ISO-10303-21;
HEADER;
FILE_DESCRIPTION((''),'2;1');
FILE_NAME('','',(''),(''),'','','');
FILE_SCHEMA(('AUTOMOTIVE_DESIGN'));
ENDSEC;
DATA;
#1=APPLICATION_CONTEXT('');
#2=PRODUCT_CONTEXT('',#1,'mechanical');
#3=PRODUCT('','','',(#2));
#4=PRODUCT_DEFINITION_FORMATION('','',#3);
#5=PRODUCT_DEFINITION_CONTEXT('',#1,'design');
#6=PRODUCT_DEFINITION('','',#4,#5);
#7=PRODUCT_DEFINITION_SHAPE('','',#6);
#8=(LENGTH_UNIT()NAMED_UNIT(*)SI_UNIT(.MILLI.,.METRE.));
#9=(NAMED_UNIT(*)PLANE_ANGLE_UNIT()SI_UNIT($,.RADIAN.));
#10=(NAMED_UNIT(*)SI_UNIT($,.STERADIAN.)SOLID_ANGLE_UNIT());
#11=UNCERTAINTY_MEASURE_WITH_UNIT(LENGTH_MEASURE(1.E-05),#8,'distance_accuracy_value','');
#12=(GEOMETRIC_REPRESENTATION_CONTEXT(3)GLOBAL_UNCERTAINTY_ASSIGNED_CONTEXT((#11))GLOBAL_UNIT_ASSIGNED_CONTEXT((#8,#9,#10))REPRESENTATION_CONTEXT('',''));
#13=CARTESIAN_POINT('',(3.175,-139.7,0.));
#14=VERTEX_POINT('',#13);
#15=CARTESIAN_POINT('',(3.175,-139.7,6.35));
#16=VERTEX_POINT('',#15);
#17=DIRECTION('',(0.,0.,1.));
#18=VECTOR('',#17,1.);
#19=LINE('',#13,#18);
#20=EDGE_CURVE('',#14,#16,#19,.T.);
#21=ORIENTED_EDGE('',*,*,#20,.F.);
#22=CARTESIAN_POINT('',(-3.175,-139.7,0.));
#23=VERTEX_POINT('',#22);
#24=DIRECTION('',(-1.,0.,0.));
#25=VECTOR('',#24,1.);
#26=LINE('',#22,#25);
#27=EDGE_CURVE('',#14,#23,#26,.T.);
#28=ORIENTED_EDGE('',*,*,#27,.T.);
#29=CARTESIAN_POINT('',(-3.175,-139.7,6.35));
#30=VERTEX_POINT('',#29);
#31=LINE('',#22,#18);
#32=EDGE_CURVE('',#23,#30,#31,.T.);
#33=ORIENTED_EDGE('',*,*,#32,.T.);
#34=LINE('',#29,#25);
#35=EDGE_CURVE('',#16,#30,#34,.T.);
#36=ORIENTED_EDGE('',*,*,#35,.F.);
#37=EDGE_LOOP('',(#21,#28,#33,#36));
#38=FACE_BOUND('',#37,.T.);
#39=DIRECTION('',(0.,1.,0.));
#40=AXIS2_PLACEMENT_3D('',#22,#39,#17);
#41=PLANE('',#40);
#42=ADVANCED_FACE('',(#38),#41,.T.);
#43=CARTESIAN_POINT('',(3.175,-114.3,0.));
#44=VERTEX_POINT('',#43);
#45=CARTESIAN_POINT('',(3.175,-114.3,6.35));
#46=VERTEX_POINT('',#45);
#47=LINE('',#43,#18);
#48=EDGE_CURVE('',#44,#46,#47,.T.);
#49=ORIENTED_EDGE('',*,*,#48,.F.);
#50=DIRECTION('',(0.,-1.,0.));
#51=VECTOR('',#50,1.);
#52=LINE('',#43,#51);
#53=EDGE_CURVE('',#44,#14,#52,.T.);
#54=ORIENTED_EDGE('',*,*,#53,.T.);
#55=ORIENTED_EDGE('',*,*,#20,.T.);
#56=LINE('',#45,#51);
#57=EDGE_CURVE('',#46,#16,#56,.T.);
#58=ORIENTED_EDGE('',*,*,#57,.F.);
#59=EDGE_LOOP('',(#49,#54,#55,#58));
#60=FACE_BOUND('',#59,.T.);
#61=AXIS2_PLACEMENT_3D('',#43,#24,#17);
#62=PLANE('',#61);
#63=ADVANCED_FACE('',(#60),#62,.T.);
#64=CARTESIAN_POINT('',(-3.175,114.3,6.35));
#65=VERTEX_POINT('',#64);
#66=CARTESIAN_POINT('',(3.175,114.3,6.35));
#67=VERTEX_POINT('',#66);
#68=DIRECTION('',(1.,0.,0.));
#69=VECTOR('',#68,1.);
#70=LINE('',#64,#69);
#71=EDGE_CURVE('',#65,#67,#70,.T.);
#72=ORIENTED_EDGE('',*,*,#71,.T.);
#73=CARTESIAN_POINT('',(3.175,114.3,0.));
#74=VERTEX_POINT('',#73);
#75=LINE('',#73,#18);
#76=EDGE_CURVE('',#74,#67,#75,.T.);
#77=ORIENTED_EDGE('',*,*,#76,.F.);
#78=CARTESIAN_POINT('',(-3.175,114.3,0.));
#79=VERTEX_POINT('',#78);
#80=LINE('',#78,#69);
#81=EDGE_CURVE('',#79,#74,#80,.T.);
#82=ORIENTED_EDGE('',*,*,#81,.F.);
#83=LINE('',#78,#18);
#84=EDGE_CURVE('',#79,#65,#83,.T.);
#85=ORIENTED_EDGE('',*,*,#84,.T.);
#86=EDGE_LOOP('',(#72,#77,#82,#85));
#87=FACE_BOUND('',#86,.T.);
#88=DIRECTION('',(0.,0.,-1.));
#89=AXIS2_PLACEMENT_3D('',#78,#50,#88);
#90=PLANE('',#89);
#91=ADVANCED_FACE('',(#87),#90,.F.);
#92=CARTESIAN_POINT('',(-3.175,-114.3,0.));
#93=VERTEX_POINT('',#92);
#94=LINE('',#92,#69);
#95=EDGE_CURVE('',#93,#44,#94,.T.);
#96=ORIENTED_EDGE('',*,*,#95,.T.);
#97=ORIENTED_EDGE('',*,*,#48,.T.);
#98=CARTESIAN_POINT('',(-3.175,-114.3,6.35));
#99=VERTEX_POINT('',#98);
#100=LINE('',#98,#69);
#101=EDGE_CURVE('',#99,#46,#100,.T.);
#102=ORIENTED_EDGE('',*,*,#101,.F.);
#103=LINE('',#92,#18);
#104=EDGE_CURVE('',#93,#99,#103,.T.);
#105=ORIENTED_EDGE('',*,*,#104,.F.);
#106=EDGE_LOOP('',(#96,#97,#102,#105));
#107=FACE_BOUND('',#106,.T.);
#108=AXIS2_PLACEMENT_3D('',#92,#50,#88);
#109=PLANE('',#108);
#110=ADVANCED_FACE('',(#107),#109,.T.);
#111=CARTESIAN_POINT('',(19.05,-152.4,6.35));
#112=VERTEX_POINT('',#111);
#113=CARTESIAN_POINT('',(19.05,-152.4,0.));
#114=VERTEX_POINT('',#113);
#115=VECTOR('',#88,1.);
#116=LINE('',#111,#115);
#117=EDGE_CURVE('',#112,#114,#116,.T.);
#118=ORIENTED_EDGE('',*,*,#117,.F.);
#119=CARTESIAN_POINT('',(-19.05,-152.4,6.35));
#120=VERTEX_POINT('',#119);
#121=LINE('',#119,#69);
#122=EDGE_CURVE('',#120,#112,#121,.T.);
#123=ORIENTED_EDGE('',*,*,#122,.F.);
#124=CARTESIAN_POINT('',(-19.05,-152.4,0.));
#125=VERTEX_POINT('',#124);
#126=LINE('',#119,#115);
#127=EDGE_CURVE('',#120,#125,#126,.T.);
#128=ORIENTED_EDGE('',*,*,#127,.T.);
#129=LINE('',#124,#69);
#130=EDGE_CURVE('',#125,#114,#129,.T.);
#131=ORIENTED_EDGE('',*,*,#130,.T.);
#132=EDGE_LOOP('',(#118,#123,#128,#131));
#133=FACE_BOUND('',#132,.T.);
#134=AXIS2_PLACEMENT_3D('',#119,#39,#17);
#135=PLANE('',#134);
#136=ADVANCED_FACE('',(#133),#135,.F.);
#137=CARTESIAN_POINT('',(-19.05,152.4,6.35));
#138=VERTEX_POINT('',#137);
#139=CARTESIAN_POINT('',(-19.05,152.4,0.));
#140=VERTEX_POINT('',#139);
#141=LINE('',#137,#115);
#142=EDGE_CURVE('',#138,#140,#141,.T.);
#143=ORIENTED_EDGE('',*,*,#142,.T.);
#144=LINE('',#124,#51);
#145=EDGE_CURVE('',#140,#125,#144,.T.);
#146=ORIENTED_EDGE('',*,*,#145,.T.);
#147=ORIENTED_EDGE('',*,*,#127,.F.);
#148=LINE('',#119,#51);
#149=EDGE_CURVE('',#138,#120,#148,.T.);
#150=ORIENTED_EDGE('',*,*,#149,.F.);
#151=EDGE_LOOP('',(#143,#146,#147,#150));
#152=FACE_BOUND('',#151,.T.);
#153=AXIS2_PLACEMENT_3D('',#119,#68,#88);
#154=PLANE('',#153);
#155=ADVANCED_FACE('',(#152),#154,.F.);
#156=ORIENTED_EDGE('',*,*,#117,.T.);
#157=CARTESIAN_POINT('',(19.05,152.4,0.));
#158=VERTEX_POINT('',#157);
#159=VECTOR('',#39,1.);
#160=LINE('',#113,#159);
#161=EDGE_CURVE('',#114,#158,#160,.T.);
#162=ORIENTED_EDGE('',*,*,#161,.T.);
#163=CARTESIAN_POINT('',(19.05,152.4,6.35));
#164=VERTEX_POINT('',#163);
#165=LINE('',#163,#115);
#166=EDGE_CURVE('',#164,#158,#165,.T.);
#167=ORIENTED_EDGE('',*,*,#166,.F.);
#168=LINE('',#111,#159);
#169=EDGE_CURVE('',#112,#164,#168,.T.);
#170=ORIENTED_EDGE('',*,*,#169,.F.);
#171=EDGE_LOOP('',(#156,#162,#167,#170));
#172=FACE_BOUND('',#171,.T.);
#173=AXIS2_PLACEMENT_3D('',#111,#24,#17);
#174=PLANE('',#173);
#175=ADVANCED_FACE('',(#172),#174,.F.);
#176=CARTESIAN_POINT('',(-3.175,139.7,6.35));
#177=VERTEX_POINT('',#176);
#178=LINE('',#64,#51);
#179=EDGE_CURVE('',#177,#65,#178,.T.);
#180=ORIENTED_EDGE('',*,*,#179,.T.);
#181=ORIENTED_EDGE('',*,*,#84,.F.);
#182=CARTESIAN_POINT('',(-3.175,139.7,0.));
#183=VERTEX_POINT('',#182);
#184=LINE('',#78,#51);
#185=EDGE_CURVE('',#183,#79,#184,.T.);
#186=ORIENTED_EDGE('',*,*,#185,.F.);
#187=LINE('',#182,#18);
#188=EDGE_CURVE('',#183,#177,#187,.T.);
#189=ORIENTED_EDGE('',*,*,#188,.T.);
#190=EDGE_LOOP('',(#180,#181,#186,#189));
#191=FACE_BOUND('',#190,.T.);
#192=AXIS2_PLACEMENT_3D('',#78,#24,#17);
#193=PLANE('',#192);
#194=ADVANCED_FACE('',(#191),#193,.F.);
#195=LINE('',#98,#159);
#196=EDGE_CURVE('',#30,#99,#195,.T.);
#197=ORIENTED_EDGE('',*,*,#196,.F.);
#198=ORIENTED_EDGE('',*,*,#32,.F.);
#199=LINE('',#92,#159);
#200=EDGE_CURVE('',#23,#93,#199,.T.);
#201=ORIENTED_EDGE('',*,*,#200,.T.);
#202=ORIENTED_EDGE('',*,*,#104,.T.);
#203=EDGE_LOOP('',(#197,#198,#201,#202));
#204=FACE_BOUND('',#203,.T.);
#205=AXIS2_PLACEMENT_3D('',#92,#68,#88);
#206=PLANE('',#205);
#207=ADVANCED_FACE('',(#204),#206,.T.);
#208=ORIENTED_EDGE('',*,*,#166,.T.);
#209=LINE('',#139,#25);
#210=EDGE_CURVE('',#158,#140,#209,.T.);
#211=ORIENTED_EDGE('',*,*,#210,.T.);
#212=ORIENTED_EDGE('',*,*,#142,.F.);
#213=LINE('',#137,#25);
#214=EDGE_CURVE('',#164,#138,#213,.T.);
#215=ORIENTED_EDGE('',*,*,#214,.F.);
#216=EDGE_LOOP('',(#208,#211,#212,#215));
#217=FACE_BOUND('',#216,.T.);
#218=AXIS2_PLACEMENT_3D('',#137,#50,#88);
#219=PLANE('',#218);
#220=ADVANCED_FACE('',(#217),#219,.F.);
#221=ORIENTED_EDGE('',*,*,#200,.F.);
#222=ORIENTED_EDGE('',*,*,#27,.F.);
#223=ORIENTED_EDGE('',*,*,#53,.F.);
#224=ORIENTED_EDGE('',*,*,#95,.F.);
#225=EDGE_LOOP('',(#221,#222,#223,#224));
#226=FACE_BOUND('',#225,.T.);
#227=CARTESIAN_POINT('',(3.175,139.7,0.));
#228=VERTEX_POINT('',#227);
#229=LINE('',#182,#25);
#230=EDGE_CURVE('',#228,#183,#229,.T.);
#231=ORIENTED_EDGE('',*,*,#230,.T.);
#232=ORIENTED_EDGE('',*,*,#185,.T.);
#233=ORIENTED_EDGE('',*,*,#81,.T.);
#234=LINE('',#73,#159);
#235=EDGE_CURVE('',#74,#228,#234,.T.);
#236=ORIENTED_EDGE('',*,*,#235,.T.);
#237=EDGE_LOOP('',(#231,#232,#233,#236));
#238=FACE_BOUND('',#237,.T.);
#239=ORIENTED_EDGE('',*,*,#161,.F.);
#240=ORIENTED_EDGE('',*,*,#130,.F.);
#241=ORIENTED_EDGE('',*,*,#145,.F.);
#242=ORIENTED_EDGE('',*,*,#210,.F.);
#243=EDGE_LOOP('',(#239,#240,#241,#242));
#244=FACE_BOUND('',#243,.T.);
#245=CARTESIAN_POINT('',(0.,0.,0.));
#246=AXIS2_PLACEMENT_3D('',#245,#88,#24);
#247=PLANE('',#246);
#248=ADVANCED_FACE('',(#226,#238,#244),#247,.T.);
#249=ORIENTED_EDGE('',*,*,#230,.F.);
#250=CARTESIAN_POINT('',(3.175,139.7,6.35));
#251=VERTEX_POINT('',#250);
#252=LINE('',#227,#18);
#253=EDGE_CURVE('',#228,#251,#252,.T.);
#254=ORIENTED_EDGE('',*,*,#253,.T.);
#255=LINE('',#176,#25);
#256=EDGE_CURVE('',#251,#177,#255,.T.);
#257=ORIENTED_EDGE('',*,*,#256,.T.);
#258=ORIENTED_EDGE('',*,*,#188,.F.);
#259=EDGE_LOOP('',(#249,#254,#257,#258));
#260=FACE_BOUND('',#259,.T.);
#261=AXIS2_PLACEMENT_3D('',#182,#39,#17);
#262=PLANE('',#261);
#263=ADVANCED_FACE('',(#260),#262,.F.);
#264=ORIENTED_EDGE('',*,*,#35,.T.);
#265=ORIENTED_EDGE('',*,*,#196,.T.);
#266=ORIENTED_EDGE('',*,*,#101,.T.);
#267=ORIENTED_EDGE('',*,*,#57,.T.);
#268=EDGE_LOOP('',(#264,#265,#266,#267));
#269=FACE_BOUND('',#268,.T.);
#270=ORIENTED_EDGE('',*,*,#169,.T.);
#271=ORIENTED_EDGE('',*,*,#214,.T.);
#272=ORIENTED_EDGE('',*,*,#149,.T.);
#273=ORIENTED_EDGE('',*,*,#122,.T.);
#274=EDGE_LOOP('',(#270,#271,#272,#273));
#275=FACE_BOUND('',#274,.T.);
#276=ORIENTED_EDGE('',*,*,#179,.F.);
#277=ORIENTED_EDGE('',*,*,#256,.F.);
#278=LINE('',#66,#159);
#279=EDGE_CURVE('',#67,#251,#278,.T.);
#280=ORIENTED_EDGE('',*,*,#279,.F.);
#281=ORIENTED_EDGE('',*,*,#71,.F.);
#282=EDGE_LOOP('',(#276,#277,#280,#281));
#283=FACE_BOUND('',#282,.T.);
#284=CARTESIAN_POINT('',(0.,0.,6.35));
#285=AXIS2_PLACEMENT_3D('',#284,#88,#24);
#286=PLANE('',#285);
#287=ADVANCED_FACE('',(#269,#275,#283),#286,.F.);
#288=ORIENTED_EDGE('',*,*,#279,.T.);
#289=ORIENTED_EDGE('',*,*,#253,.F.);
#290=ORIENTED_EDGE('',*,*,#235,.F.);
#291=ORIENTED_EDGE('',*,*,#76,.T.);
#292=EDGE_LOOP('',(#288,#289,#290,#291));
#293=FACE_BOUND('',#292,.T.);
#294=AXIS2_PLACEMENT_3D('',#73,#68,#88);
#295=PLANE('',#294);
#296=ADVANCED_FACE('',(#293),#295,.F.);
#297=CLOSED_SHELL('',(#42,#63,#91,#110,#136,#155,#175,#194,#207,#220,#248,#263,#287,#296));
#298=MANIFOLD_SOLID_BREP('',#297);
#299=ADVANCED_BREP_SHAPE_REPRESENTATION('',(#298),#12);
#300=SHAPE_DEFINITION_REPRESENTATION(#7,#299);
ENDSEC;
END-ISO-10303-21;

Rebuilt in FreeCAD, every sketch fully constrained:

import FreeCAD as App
import Part
import Sketcher
from FreeCAD import Vector
Q = App.Units.Quantity


def add_polygon(sketch, points):
    """Adds a closed chain of lines whose ends are joined by coincident constraints."""
    first, n = sketch.GeometryCount, len(points)
    for a, b in zip(points, points[1:] + points[:1]):
        sketch.addGeometry(Part.LineSegment(App.Vector(*a, 0), App.Vector(*b, 0)), False)
    for i in range(n):
        sketch.addConstraint(Sketcher.Constraint("Coincident", first + i, 2, first + (i + 1) % n, 1))

doc = App.newDocument("Part")
body = doc.addObject("PartDesign::Body", "Body")

sketch1 = body.newObject("Sketcher::SketchObject", "Sketch")
sketch1.AttachmentSupport = (doc.getObject("XY_Plane"), [""])
sketch1.MapMode = "FlatFace"
add_polygon(sketch1, [(-19, 152), (-19, -152), (19, -152), (19, 152)])
sketch1.addConstraint([
    Sketcher.Constraint("Vertical", 0),
    Sketcher.Constraint("Horizontal", 1),
    Sketcher.Constraint("Vertical", 2),
    Sketcher.Constraint("Horizontal", 3),
    Sketcher.Constraint("Symmetric", 0, 2, 2, 2, -1, 1),
    Sketcher.Constraint("DistanceY", 0, 2, 0, 1, Q("12 in")),
    Sketcher.Constraint("DistanceX", 1, 1, 1, 2, Q("1.5 in")),
])
pad1 = body.newObject("PartDesign::Pad", "Pad")
pad1.Profile = sketch1
pad1.Length = Q("0.25 in")

sketch2 = body.newObject("Sketcher::SketchObject", "Sketch001")
sketch2.AttachmentSupport = (doc.getObject("XY_Plane"), [""])
sketch2.MapMode = "FlatFace"
sketch2.AttachmentOffset = App.Placement(Vector(0, 0, 0.25 * 25.4), App.Rotation())
add_polygon(sketch2, [(-3, 140), (-3, 114), (3, 114), (3, 140)])
sketch2.addConstraint([
    Sketcher.Constraint("Vertical", 0),
    Sketcher.Constraint("Horizontal", 1),
    Sketcher.Constraint("Vertical", 2),
    Sketcher.Constraint("Horizontal", 3),
    Sketcher.Constraint("DistanceY", 0, 2, 0, 1, Q("1 in")),
    Sketcher.Constraint("DistanceX", 1, 1, 1, 2, Q("0.25 in")),
    Sketcher.Constraint("DistanceY", -1, 1, 0, 2, Q("4.5 in")),
    Sketcher.Constraint("DistanceX", 0, 2, -1, 1, Q("0.125 in")),
])
pocket1 = body.newObject("PartDesign::Pocket", "Pocket")
pocket1.Profile = sketch2
pocket1.Type = "ThroughAll"
doc.recompute()

mirrored = body.newObject("PartDesign::Mirrored", "Mirrored")
mirrored.Originals = [pocket1]
mirrored.MirrorPlane = (doc.getObject("XZ_Plane"), [""])
body.Tip = mirrored

doc.recompute()
